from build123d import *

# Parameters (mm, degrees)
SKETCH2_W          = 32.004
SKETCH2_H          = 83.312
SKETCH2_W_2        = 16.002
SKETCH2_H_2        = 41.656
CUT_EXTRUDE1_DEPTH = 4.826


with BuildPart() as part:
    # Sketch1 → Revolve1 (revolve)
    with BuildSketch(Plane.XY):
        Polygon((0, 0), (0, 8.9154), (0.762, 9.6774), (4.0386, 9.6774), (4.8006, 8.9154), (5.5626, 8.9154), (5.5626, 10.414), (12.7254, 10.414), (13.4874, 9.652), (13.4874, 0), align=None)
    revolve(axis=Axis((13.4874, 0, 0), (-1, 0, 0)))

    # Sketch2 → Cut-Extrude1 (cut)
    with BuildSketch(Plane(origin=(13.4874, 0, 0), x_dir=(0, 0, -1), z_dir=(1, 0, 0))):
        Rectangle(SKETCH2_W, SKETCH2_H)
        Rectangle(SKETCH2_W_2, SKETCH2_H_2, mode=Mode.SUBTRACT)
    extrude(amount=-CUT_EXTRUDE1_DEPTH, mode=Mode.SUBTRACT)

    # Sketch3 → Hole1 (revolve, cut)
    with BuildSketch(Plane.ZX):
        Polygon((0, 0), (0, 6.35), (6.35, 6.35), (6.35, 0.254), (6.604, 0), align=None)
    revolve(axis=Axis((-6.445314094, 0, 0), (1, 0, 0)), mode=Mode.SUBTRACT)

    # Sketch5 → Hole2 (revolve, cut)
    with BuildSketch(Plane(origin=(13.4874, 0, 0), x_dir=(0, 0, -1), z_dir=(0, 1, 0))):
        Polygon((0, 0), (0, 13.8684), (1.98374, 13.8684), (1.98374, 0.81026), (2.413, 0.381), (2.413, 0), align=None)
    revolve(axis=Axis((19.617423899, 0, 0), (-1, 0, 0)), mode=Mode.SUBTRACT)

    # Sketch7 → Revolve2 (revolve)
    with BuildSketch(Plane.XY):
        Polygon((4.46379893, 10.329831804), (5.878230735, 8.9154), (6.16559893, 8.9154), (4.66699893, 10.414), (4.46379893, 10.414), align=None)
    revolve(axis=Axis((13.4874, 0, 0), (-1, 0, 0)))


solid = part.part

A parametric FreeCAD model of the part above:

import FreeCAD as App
import Part
import Sketcher

V = App.Vector
Q = App.Units.Quantity

doc = App.newDocument("Part")
body = doc.addObject("PartDesign::Body", "Body")

sketch1 = body.newObject("Sketcher::SketchObject", "Sketch")
sketch1.AttachmentSupport = (doc.getObject("XY_Plane"), [""])
sketch1.MapMode = "FlatFace"
sketch1.addGeometry(Part.LineSegment(V(0, 8.9, 0), V(0, 0, 0)), False)
sketch1.addGeometry(Part.LineSegment(V(0, 0, 0), V(13.5, 0, 0)), False)
sketch1.addGeometry(Part.LineSegment(V(13.5, 0, 0), V(13.5, 9.7, 0)), False)
sketch1.addGeometry(Part.LineSegment(V(13.5, 9.7, 0), V(12.7, 10.4, 0)), False)
sketch1.addGeometry(Part.LineSegment(V(12.7, 10.4, 0), V(5.6, 10.4, 0)), False)
sketch1.addGeometry(Part.LineSegment(V(5.6, 10.4, 0), V(5.6, 8.9, 0)), False)
sketch1.addGeometry(Part.LineSegment(V(5.6, 8.9, 0), V(4.8, 8.9, 0)), False)
sketch1.addGeometry(Part.LineSegment(V(4.8, 8.9, 0), V(4, 9.7, 0)), False)
sketch1.addGeometry(Part.LineSegment(V(4, 9.7, 0), V(0.8, 9.7, 0)), False)
sketch1.addGeometry(Part.LineSegment(V(0.8, 9.7, 0), V(0, 8.9, 0)), False)
sketch1.addConstraint(Sketcher.Constraint("Coincident", 0, 2, 1, 1))
sketch1.addConstraint(Sketcher.Constraint("Coincident", 1, 2, 2, 1))
sketch1.addConstraint(Sketcher.Constraint("Coincident", 2, 2, 3, 1))
sketch1.addConstraint(Sketcher.Constraint("Coincident", 3, 2, 4, 1))
sketch1.addConstraint(Sketcher.Constraint("Coincident", 4, 2, 5, 1))
sketch1.addConstraint(Sketcher.Constraint("Coincident", 5, 2, 6, 1))
sketch1.addConstraint(Sketcher.Constraint("Coincident", 6, 2, 7, 1))
sketch1.addConstraint(Sketcher.Constraint("Coincident", 7, 2, 8, 1))
sketch1.addConstraint(Sketcher.Constraint("Coincident", 8, 2, 9, 1))
sketch1.addConstraint(Sketcher.Constraint("Coincident", 9, 2, 0, 1))
sketch1.addConstraint(Sketcher.Constraint("Vertical", 0))
sketch1.addConstraint(Sketcher.Constraint("Horizontal", 1))
sketch1.addConstraint(Sketcher.Constraint("Vertical", 2))
sketch1.addConstraint(Sketcher.Constraint("Horizontal", 4))
sketch1.addConstraint(Sketcher.Constraint("Vertical", 5))
sketch1.addConstraint(Sketcher.Constraint("Horizontal", 6))
sketch1.addConstraint(Sketcher.Constraint("Horizontal", 8))
sketch1.addConstraint(Sketcher.Constraint("Coincident", 0, 2, -1, 1))
sketch1.addConstraint(Sketcher.Constraint("Parallel", 3, 7))
sketch1.addConstraint(Sketcher.Constraint("Perpendicular", 7, 9))
sketch1.addConstraint(Sketcher.Constraint("Horizontal", 6, 2, 9, 2))
sketch1.addConstraint(Sketcher.Constraint("Equal", 3, 7))
sketch1.addConstraint(Sketcher.Constraint("Equal", 7, 9))
sketch1.addConstraint(Sketcher.Constraint("DistanceX", 6, 2, 6, 1, Q("0.03 in")))
sketch1.addConstraint(Sketcher.Constraint("DistanceY", 2, 1, 2, 2, Q("0.38 in")))
sketch1.addConstraint(Sketcher.Constraint("DistanceX", 1, 1, 1, 2, Q("0.531 in")))
sketch1.addConstraint(Sketcher.Constraint("DistanceX", 4, 2, 4, 1, Q("0.282 in")))
sketch1.addConstraint(Sketcher.Constraint("DistanceX", 8, 2, 8, 1, Q("0.129 in")))
sketch1.addConstraint(Sketcher.Constraint("DistanceY", 0, 2, 0, 1, Q("0.351 in")))
revolution = body.newObject("PartDesign::Revolution", "Revolution")
revolution.Profile = sketch1
revolution.ReferenceAxis = (sketch1, ["H_Axis"])
revolution.Angle = 360

sketch2 = body.newObject("Sketcher::SketchObject", "Sketch001")
sketch2.AttachmentSupport = (doc.getObject("YZ_Plane"), [""])
sketch2.MapMode = "FlatFace"
sketch2.AttachmentOffset = App.Placement(V(0, 0, 0.531 * 25.4), App.Rotation())
sketch2.addGeometry(Part.LineSegment(V(42, 16, 0), V(-42, 16, 0)), False)
sketch2.addGeometry(Part.LineSegment(V(-42, 16, 0), V(-42, -16, 0)), False)
sketch2.addGeometry(Part.LineSegment(V(-42, -16, 0), V(42, -16, 0)), False)
sketch2.addGeometry(Part.LineSegment(V(42, -16, 0), V(42, 16, 0)), False)
sketch2.addGeometry(Part.LineSegment(V(-21, -8, 0), V(-21, 8, 0)), False)
sketch2.addGeometry(Part.LineSegment(V(-21, 8, 0), V(21, 8, 0)), False)
sketch2.addGeometry(Part.LineSegment(V(21, 8, 0), V(21, -8, 0)), False)
sketch2.addGeometry(Part.LineSegment(V(21, -8, 0), V(-21, -8, 0)), False)
sketch2.addConstraint(Sketcher.Constraint("Coincident", 0, 2, 1, 1))
sketch2.addConstraint(Sketcher.Constraint("Coincident", 1, 2, 2, 1))
sketch2.addConstraint(Sketcher.Constraint("Coincident", 2, 2, 3, 1))
sketch2.addConstraint(Sketcher.Constraint("Coincident", 3, 2, 0, 1))
sketch2.addConstraint(Sketcher.Constraint("Coincident", 4, 2, 5, 1))
sketch2.addConstraint(Sketcher.Constraint("Coincident", 5, 2, 6, 1))
sketch2.addConstraint(Sketcher.Constraint("Coincident", 6, 2, 7, 1))
sketch2.addConstraint(Sketcher.Constraint("Coincident", 7, 2, 4, 1))
sketch2.addConstraint(Sketcher.Constraint("Horizontal", 0))
sketch2.addConstraint(Sketcher.Constraint("Vertical", 1))
sketch2.addConstraint(Sketcher.Constraint("Horizontal", 2))
sketch2.addConstraint(Sketcher.Constraint("Vertical", 3))
sketch2.addConstraint(Sketcher.Constraint("Vertical", 4))
sketch2.addConstraint(Sketcher.Constraint("Horizontal", 5))
sketch2.addConstraint(Sketcher.Constraint("Vertical", 6))
sketch2.addConstraint(Sketcher.Constraint("Horizontal", 7))
sketch2.addConstraint(Sketcher.Constraint("Symmetric", 0, 2, 2, 2, -1, 1))
sketch2.addConstraint(Sketcher.Constraint("Symmetric", 4, 2, 6, 2, -1, 1))
sketch2.addConstraint(Sketcher.Constraint("DistanceX", 0, 2, 0, 1, Q("3.28 in")))
sketch2.addConstraint(Sketcher.Constraint("DistanceX", 5, 1, 5, 2, Q("1.64 in")))
sketch2.addConstraint(Sketcher.Constraint("DistanceY", 1, 2, 1, 1, Q("1.26 in")))
sketch2.addConstraint(Sketcher.Constraint("DistanceY", 4, 1, 4, 2, Q("0.63 in")))
pocket1 = body.newObject("PartDesign::Pocket", "Pocket")
pocket1.Profile = sketch2
pocket1.Length = Q("0.19 in")

sketch3 = body.newObject("Sketcher::SketchObject", "Sketch002")
sketch3.AttachmentSupport = (doc.getObject("XZ_Plane"), [""])
sketch3.MapMode = "FlatFace"
sketch3.addGeometry(Part.LineSegment(V(6.35, 0, 0), V(0, 0, 0)), False)
sketch3.addGeometry(Part.LineSegment(V(0, 0, 0), V(0, 6.6, 0)), False)
sketch3.addGeometry(Part.LineSegment(V(0, 6.6, 0), V(0.25, 6.35, 0)), False)
sketch3.addGeometry(Part.LineSegment(V(0.25, 6.35, 0), V(6.35, 6.35, 0)), False)
sketch3.addGeometry(Part.LineSegment(V(6.35, 6.35, 0), V(6.35, 0, 0)), False)
sketch3.addConstraint(Sketcher.Constraint("Coincident", 0, 2, 1, 1))
sketch3.addConstraint(Sketcher.Constraint("Coincident", 1, 2, 2, 1))
sketch3.addConstraint(Sketcher.Constraint("Coincident", 2, 2, 3, 1))
sketch3.addConstraint(Sketcher.Constraint("Coincident", 3, 2, 4, 1))
sketch3.addConstraint(Sketcher.Constraint("Coincident", 4, 2, 0, 1))
sketch3.addConstraint(Sketcher.Constraint("Horizontal", 0))
sketch3.addConstraint(Sketcher.Constraint("Vertical", 1))
sketch3.addConstraint(Sketcher.Constraint("Horizontal", 3))
sketch3.addConstraint(Sketcher.Constraint("Vertical", 4))
sketch3.addConstraint(Sketcher.Constraint("Coincident", 0, 2, -1, 1))
sketch3.addConstraint(Sketcher.Constraint("Equal", 0, 4))
sketch3.addConstraint(Sketcher.Constraint("Angle", 2, Q("-45 deg")))
sketch3.addConstraint(Sketcher.Constraint("DistanceX", 0, 2, 0, 1, Q("0.25 in")))
sketch3.addConstraint(Sketcher.Constraint("DistanceX", 3, 1, 3, 2, Q("0.24 in")))
groove = body.newObject("PartDesign::Groove", "Groove")
groove.Profile = sketch3
groove.ReferenceAxis = (sketch3, ["H_Axis"])
groove.Angle = 360

sketch4 = body.newObject("Sketcher::SketchObject", "Sketch003")
sketch4.AttachmentSupport = (doc.getObject("XZ_Plane"), [""])
sketch4.MapMode = "FlatFace"
sketch4.addGeometry(Part.LineSegment(V(-0.38, 0, 0), V(13.49, 0, 0)), False)
sketch4.addGeometry(Part.LineSegment(V(13.49, 0, 0), V(13.49, -2.41, 0)), False)
sketch4.addGeometry(Part.LineSegment(V(13.49, -2.41, 0), V(13.11, -2.41, 0)), False)
sketch4.addGeometry(Part.LineSegment(V(13.11, -2.41, 0), V(12.68, -1.98, 0)), False)
sketch4.addGeometry(Part.LineSegment(V(12.68, -1.98, 0), V(-0.38, -1.98, 0)), False)
sketch4.addGeometry(Part.LineSegment(V(-0.38, -1.98, 0), V(-0.38, 0, 0)), False)
sketch4.addConstraint(Sketcher.Constraint("Coincident", 0, 2, 1, 1))
sketch4.addConstraint(Sketcher.Constraint("Coincident", 1, 2, 2, 1))
sketch4.addConstraint(Sketcher.Constraint("Coincident", 2, 2, 3, 1))
sketch4.addConstraint(Sketcher.Constraint("Coincident", 3, 2, 4, 1))
sketch4.addConstraint(Sketcher.Constraint("Coincident", 4, 2, 5, 1))
sketch4.addConstraint(Sketcher.Constraint("Coincident", 5, 2, 0, 1))
sketch4.addConstraint(Sketcher.Constraint("Horizontal", 0))
sketch4.addConstraint(Sketcher.Constraint("Vertical", 1))
sketch4.addConstraint(Sketcher.Constraint("Horizontal", 2))
sketch4.addConstraint(Sketcher.Constraint("Horizontal", 4))
sketch4.addConstraint(Sketcher.Constraint("Vertical", 5))
sketch4.addConstraint(Sketcher.Constraint("PointOnObject", 0, 2, -1))
sketch4.addConstraint(Sketcher.Constraint("Angle", 3, Q("135 deg")))
sketch4.addConstraint(Sketcher.Constraint("DistanceX", 0, 1, 0, 2, Q("0.546 in")))
sketch4.addConstraint(Sketcher.Constraint("DistanceX", 2, 2, 2, 1, Q("0.015 in")))
sketch4.addConstraint(Sketcher.Constraint("DistanceY", 1, 2, 1, 1, Q("0.095 in")))
sketch4.addConstraint(Sketcher.Constraint("DistanceX", 4, 2, 4, 1, Q("0.5141 in")))
sketch4.addConstraint(Sketcher.Constraint("DistanceX", -1, 1, 0, 2, Q("0.531 in")))
groove2 = body.newObject("PartDesign::Groove", "Groove001")
groove2.Profile = sketch4
groove2.ReferenceAxis = (sketch4, ["H_Axis"])
groove2.Angle = 360

sketch5 = body.newObject("Sketcher::SketchObject", "Sketch004")
sketch5.AttachmentSupport = (doc.getObject("XY_Plane"), [""])
sketch5.MapMode = "FlatFace"
sketch5.addGeometry(Part.LineSegment(V(4.46, 10.33, 0), V(5.88, 8.92, 0)), False)
sketch5.addGeometry(Part.LineSegment(V(5.88, 8.92, 0), V(6.17, 8.92, 0)), False)
sketch5.addGeometry(Part.LineSegment(V(6.17, 8.92, 0), V(4.67, 10.41, 0)), False)
sketch5.addGeometry(Part.LineSegment(V(4.67, 10.41, 0), V(4.46, 10.41, 0)), False)
sketch5.addGeometry(Part.LineSegment(V(4.46, 10.41, 0), V(4.46, 10.33, 0)), False)
sketch5.addConstraint(Sketcher.Constraint("Coincident", 0, 2, 1, 1))
sketch5.addConstraint(Sketcher.Constraint("Coincident", 1, 2, 2, 1))
sketch5.addConstraint(Sketcher.Constraint("Coincident", 2, 2, 3, 1))
sketch5.addConstraint(Sketcher.Constraint("Coincident", 3, 2, 4, 1))
sketch5.addConstraint(Sketcher.Constraint("Coincident", 4, 2, 0, 1))
sketch5.addConstraint(Sketcher.Constraint("Horizontal", 1))
sketch5.addConstraint(Sketcher.Constraint("Horizontal", 3))
sketch5.addConstraint(Sketcher.Constraint("Vertical", 4))
sketch5.addConstraint(Sketcher.Constraint("Parallel", 0, 2))
sketch5.addConstraint(Sketcher.Constraint("Angle", 0, Q("-45 deg")))
sketch5.addConstraint(Sketcher.Constraint("DistanceX", 3, 2, 3, 1, Q("0.008 in")))
sketch5.addConstraint(Sketcher.Constraint("DistanceY", -1, 1, 2, 2, Q("0.41 in")))
sketch5.addConstraint(Sketcher.Constraint("DistanceY", -1, 1, 0, 2, Q("0.351 in")))
sketch5.addConstraint(Sketcher.Constraint("DistanceX", 1, 1, 1, 2, 0.287368))
sketch5.addConstraint(Sketcher.Constraint("DistanceX", -1, 1, 1, 2, 6.165599))
revolution2 = body.newObject("PartDesign::Revolution", "Revolution001")
revolution2.Profile = sketch5
revolution2.ReferenceAxis = (sketch5, ["H_Axis"])
revolution2.Angle = 360

doc.recompute()
